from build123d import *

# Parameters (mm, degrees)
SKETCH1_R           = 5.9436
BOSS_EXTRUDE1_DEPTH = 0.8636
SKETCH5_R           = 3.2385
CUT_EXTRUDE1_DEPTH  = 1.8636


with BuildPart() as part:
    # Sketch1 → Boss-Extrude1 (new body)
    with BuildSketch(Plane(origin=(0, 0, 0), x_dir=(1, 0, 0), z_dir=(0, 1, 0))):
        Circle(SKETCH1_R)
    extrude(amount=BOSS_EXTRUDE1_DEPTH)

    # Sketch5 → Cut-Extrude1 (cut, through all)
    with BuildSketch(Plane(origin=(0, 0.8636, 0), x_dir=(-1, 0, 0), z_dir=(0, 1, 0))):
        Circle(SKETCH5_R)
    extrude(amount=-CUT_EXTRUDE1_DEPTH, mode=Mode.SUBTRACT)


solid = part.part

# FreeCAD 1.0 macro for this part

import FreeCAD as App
import Part
import Sketcher

V = App.Vector
Q = App.Units.Quantity

doc = App.newDocument("Part")
body = doc.addObject("PartDesign::Body", "Body")

# Sketch on XZ plane
sketch1 = body.newObject("Sketcher::SketchObject", "Sketch")
sketch1.AttachmentSupport = (doc.getObject("XZ_Plane"), [""])
sketch1.MapMode = "FlatFace"
sketch1.addGeometry(Part.Circle(V(0, 0, 0), V(0, 0, 1), 6), False)
sketch1.addConstraint([
    Sketcher.Constraint("Coincident", 0, 3, -1, 1),
    Sketcher.Constraint("Diameter", 0, Q("0.468 in")),
])
pad1 = body.newObject("PartDesign::Pad", "Pad")
pad1.Profile = sketch1
pad1.Length = Q("0.034 in")
pad1.Reversed = True

# Sketch on XZ plane
sketch2 = body.newObject("Sketcher::SketchObject", "Sketch001")
sketch2.AttachmentSupport = (doc.getObject("XZ_Plane"), [""])
sketch2.MapMode = "FlatFace"
sketch2.AttachmentOffset = App.Placement(V(0, 0, -0.034 * 25.4), App.Rotation())
sketch2.addGeometry(Part.Circle(V(0, 0, 0), V(0, 0, 1), 3.2), False)
sketch2.addConstraint([
    Sketcher.Constraint("Coincident", 0, 3, -1, 1),
    Sketcher.Constraint("Diameter", 0, Q("0.255 in")),
])
pocket1 = body.newObject("PartDesign::Pocket", "Pocket")
pocket1.Profile = sketch2
pocket1.Type = "ThroughAll"
pocket1.Reversed = True

doc.recompute()
